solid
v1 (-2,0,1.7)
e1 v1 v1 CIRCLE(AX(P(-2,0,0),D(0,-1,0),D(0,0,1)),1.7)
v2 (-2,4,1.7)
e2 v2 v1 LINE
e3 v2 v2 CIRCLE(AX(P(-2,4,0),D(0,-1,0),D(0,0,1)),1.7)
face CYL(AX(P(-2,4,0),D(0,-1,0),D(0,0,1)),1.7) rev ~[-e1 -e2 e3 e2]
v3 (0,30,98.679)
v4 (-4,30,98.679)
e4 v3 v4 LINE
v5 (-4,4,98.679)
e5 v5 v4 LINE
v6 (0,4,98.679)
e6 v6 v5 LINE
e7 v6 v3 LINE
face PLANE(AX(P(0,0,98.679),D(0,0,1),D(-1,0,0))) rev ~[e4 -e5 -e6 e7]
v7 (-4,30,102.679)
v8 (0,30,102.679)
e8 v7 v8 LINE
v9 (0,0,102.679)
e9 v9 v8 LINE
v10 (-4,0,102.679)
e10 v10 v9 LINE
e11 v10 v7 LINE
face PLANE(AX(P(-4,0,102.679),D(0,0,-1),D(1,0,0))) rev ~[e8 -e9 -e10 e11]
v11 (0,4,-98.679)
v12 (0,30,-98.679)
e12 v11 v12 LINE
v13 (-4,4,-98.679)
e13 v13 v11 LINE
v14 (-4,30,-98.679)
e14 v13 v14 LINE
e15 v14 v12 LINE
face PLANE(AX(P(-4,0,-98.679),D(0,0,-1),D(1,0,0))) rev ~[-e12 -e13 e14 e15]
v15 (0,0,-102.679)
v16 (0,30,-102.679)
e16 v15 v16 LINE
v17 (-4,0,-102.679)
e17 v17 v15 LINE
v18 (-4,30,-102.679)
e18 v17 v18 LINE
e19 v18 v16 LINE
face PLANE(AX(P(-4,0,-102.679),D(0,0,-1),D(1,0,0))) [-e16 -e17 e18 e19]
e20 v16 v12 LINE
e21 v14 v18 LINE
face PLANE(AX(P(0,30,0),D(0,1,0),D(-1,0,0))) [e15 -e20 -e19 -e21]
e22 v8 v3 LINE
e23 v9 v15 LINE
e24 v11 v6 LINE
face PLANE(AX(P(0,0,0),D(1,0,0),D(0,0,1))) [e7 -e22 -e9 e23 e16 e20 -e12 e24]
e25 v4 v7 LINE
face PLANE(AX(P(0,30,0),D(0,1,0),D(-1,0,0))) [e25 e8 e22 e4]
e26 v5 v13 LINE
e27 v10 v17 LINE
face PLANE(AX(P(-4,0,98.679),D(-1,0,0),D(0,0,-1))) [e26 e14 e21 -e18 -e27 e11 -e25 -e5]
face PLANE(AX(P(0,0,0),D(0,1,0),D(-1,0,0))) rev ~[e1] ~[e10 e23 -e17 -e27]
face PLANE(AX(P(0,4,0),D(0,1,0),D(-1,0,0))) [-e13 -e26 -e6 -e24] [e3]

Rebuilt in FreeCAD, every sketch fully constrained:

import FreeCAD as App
import Part
import Sketcher

V = App.Vector
Q = App.Units.Quantity


def add_polygon(sketch, points):
    """Adds a closed chain of lines whose ends are joined by coincident constraints."""
    first, n = sketch.GeometryCount, len(points)
    for a, b in zip(points, points[1:] + points[:1]):
        sketch.addGeometry(Part.LineSegment(App.Vector(*a, 0), App.Vector(*b, 0)), False)
    for i in range(n):
        sketch.addConstraint(Sketcher.Constraint("Coincident", first + i, 2, first + (i + 1) % n, 1))

doc = App.newDocument("Part")
body = doc.addObject("PartDesign::Body", "Body")

sketch1 = doc.addObject("Sketcher::SketchObject", "Sketch")
body.addObject(sketch1)
sketch1.AttachmentSupport = (doc.XZ_Plane, [""])
sketch1.MapMode = "FlatFace"
add_polygon(sketch1, [(0, 98.7), (0, -98.7), (-4, -98.7), (-4, 98.7)])
sketch1.addConstraint([
    Sketcher.Constraint("Vertical", 0),
    Sketcher.Constraint("Horizontal", 1),
    Sketcher.Constraint("Vertical", 2),
    Sketcher.Constraint("Horizontal", 3),
    Sketcher.Constraint("Symmetric", 0, 2, 3, 2, -1, 1),
    Sketcher.Constraint("DistanceX", 1, 2, 1, 1, Q("4 mm")),
    Sketcher.Constraint("DistanceY", 0, 2, 0, 1, Q("197.358 mm")),
])
pad1 = doc.addObject("PartDesign::Pad", "Pad")
body.addObject(pad1)
pad1.Profile = sketch1
pad1.Length = 4
pad1.Reversed = True

sketch2 = doc.addObject("Sketcher::SketchObject", "Sketch001")
body.addObject(sketch2)
sketch2.AttachmentSupport = (doc.XZ_Plane, [""])
sketch2.MapMode = "FlatFace"
add_polygon(sketch2, [(0, 102.7), (0, 98.7), (-4, 98.7), (-4, 102.7)])
add_polygon(sketch2, [(-4, -98.7), (0, -98.7), (0, -102.7), (-4, -102.7)])
sketch2.addConstraint([
    Sketcher.Constraint("Vertical", 0),
    Sketcher.Constraint("Horizontal", 1),
    Sketcher.Constraint("Vertical", 2),
    Sketcher.Constraint("Horizontal", 3),
    Sketcher.Constraint("Horizontal", 4),
    Sketcher.Constraint("Vertical", 5),
    Sketcher.Constraint("Horizontal", 6),
    Sketcher.Constraint("Vertical", 7),
    Sketcher.Constraint("Symmetric", 0, 2, 4, 2, -1, 1),
    Sketcher.Constraint("Symmetric", 3, 2, 5, 2, -1),
    Sketcher.Constraint("Vertical", 2, 2, 6, 2),
    Sketcher.Constraint("Equal", 6, 0),
    Sketcher.Constraint("DistanceX", 1, 2, 1, 1, Q("4 mm")),
    Sketcher.Constraint("DistanceY", -1, 1, 0, 2, Q("98.679 mm")),
])
pad2 = doc.addObject("PartDesign::Pad", "Pad001")
body.addObject(pad2)
pad2.Profile = sketch2
pad2.Length = 30
pad2.Reversed = True

sketch3 = doc.addObject("Sketcher::SketchObject", "Sketch002")
body.addObject(sketch3)
sketch3.AttachmentSupport = (doc.XZ_Plane, [""])
sketch3.MapMode = "FlatFace"
sketch3.AttachmentOffset = App.Placement(V(0, 0, -4), App.Rotation())
sketch3.addGeometry(Part.Circle(V(-2, 0, 0), V(0, 0, 1), 1.7), False)
sketch3.addConstraint([
    Sketcher.Constraint("PointOnObject", 0, 3, -1),
    Sketcher.Constraint("Diameter", 0, Q("3.4 mm")),
    Sketcher.Constraint("DistanceX", 0, 3, -1, 1, Q("2 mm")),
])
doc.recompute()
hole = doc.addObject("PartDesign::Hole", "Hole")
body.addObject(hole)
hole.Profile = sketch3
hole.ThreadType = "None"
hole.Diameter = 3.4
hole.DepthType = "ThroughAll"
hole.Reversed = True

doc.recompute()
